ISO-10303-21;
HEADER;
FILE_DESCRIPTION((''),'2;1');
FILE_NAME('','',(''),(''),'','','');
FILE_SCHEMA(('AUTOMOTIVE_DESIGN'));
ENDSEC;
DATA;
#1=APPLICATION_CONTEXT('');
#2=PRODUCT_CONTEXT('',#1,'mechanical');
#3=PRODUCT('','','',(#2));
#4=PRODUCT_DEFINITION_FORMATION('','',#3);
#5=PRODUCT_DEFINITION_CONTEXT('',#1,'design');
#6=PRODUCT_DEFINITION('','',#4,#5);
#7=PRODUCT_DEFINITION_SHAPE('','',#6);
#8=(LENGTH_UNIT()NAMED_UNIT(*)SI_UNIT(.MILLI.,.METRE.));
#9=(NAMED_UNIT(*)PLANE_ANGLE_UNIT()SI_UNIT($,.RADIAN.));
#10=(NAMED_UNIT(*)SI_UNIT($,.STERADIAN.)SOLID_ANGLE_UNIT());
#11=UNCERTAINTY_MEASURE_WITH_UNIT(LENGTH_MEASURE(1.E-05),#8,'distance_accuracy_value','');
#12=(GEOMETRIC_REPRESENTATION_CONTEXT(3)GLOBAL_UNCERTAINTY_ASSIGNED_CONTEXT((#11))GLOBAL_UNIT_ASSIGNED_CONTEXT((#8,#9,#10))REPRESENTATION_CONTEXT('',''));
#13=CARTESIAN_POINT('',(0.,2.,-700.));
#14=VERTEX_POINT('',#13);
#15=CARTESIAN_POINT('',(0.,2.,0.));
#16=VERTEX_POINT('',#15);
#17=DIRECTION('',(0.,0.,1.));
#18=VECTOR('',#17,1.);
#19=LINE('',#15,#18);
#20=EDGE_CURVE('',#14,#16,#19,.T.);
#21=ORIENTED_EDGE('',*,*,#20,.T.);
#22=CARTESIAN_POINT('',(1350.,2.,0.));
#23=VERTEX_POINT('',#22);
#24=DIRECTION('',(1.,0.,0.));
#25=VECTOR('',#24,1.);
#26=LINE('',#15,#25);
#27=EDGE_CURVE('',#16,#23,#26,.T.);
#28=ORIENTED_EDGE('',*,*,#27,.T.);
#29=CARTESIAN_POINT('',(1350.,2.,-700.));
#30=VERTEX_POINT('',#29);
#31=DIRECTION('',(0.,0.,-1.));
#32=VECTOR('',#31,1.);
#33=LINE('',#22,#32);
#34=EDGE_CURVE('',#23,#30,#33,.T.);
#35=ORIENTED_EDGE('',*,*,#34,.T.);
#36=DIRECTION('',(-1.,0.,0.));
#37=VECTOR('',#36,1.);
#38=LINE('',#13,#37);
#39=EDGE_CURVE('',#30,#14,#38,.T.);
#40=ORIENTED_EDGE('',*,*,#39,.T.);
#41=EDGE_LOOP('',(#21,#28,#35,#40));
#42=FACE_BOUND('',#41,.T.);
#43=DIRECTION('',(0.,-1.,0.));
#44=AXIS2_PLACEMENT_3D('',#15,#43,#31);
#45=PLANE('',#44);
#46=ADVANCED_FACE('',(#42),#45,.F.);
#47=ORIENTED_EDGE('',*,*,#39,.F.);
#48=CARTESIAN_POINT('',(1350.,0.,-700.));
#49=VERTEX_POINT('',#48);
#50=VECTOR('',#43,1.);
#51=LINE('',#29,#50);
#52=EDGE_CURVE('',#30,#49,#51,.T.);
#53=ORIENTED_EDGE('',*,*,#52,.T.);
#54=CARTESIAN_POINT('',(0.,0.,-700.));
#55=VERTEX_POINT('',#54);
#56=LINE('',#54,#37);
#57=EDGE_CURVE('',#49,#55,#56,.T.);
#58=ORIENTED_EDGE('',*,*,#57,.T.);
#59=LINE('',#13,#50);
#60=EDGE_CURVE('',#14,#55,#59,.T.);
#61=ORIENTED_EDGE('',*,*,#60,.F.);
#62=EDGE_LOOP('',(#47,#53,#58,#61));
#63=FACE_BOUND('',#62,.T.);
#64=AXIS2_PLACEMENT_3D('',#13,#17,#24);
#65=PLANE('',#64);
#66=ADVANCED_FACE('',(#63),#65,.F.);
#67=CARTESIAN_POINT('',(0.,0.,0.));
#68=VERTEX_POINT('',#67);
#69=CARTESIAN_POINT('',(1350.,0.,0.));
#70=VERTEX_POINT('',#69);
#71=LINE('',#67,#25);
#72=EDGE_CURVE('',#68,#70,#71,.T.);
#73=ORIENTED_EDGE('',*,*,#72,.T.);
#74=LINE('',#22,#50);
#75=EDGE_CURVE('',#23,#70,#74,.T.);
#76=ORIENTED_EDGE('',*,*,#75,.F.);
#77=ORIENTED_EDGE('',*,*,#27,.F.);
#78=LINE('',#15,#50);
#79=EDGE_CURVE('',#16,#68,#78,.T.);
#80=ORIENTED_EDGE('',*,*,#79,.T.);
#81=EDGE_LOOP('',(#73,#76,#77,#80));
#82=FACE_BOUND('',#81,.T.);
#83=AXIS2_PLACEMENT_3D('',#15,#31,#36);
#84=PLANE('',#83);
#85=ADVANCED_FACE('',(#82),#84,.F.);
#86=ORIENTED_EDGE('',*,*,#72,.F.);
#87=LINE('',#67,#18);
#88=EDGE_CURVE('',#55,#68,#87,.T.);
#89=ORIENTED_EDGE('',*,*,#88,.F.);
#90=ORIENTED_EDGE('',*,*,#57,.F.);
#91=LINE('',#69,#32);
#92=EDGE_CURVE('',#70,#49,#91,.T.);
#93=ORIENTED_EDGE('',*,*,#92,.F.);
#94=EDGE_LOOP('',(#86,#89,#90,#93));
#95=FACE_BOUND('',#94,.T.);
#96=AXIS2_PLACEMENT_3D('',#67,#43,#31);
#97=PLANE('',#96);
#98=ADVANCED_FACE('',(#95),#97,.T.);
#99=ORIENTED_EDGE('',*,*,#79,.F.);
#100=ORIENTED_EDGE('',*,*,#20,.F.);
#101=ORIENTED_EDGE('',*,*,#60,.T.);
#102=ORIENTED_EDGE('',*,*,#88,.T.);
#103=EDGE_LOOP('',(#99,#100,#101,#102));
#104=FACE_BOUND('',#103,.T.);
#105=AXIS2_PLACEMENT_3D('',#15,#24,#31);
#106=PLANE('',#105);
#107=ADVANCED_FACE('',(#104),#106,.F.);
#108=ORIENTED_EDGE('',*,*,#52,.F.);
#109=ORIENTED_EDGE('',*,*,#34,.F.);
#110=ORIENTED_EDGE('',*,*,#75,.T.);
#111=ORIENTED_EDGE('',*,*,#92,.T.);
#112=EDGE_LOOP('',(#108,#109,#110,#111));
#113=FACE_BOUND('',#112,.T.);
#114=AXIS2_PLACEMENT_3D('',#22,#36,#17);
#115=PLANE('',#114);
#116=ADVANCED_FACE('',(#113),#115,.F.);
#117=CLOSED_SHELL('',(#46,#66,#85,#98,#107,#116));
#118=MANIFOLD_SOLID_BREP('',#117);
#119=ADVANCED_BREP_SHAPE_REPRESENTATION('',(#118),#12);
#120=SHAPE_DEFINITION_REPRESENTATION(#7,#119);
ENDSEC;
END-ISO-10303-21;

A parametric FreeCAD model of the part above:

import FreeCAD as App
import Part
import Sketcher
from FreeCAD import Vector


def add_polygon(sketch, points):
    """Adds a closed chain of lines whose ends are joined by coincident constraints."""
    first, n = sketch.GeometryCount, len(points)
    for a, b in zip(points, points[1:] + points[:1]):
        sketch.addGeometry(Part.LineSegment(App.Vector(*a, 0), App.Vector(*b, 0)), False)
    for i in range(n):
        sketch.addConstraint(Sketcher.Constraint("Coincident", first + i, 2, first + (i + 1) % n, 1))

doc = App.newDocument("Part")
body = doc.addObject("PartDesign::Body", "Body")

# Sketch on XZ plane
sketch1 = body.newObject("Sketcher::SketchObject", "Sketch")
sketch1.AttachmentSupport = (doc.getObject("XZ_Plane"), [""])
sketch1.MapMode = "FlatFace"
add_polygon(sketch1, [(0, -700), (0, 0), (1350, 0), (1350, -700)])  # lines 0-3
sketch1.addConstraint([
    Sketcher.Constraint("Vertical", 0),
    Sketcher.Constraint("Horizontal", 1),
    Sketcher.Constraint("Vertical", 2),
    Sketcher.Constraint("Horizontal", 3),
    Sketcher.Constraint("Coincident", 0, 2, -1, 1),
    Sketcher.Constraint("DistanceX", 1, 1, 1, 2, 1350.0),
    Sketcher.Constraint("DistanceY", 0, 1, 0, 2, 700.0),
])
pad1 = body.newObject("PartDesign::Pad", "Pad")
pad1.Profile = sketch1
pad1.Length = 2
pad1.Reversed = True

doc.recompute()
